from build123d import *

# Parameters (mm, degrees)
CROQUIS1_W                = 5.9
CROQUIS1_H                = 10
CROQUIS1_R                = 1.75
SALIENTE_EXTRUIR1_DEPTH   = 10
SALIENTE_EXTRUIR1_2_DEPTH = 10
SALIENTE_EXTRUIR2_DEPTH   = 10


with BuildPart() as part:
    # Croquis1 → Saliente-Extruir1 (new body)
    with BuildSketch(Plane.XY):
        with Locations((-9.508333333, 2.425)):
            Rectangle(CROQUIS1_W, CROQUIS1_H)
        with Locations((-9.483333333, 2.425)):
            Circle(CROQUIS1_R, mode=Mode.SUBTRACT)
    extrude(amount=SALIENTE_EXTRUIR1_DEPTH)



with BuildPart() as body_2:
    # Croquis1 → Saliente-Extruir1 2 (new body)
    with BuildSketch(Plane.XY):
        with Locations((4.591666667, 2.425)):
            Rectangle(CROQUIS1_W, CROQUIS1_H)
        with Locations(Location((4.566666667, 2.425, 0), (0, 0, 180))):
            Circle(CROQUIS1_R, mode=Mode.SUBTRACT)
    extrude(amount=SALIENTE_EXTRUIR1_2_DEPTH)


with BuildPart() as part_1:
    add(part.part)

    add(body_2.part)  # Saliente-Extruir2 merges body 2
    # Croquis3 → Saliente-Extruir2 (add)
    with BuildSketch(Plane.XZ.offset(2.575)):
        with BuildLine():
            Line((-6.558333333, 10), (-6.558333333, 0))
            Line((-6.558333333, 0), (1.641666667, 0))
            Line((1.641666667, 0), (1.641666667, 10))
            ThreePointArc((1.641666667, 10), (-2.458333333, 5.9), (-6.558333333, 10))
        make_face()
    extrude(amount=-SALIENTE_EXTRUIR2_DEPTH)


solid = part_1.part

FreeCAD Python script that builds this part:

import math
import FreeCAD as App
import Part
import Sketcher
Q = App.Units.Quantity

doc = App.newDocument("Part")
body = doc.addObject("PartDesign::Body", "Body")

sketch1 = doc.addObject("Sketcher::SketchObject", "Sketch")
body.addObject(sketch1)
sketch1.AttachmentSupport = (doc.XY_Plane, [""])
sketch1.MapMode = "FlatFace"
sketch1.addGeometry([
    Part.LineSegment(App.Vector(-12.5, 7.4, 0), App.Vector(-12.5, -2.6, 0)),
    Part.LineSegment(App.Vector(-12.5, -2.6, 0), App.Vector(-6.6, -2.6, 0)),
    Part.LineSegment(App.Vector(-6.6, -2.6, 0), App.Vector(-6.6, 7.4, 0)),
    Part.LineSegment(App.Vector(-6.6, 7.4, 0), App.Vector(-12.5, 7.4, 0)),
    Part.Circle(App.Vector(-9.5, 2.4, 0), App.Vector(0, 0, 1), 1.8),
], False)
sketch1.addConstraint([
    Sketcher.Constraint("Coincident", 0, 2, 1, 1),
    Sketcher.Constraint("Coincident", 1, 2, 2, 1),
    Sketcher.Constraint("Coincident", 2, 2, 3, 1),
    Sketcher.Constraint("Coincident", 3, 2, 0, 1),
    Sketcher.Constraint("Vertical", 0),
    Sketcher.Constraint("Horizontal", 1),
    Sketcher.Constraint("Vertical", 2),
    Sketcher.Constraint("Horizontal", 3),
    Sketcher.Constraint("Diameter", 4, Q("3.5 mm")),
    Sketcher.Constraint("DistanceY", 0, 2, 0, 1, Q("10 mm")),
    Sketcher.Constraint("DistanceX", 1, 1, 1, 2, Q("5.9 mm")),
    Sketcher.Constraint("DistanceY", 0, 2, 4, 3, Q("5 mm")),
    Sketcher.Constraint("DistanceY", -1, 1, 4, 3, Q("2.425 mm")),
    Sketcher.Constraint("DistanceX", 0, 2, 4, 3, Q("2.975 mm")),
    Sketcher.Constraint("DistanceX", 4, 3, -1, 1, Q("9.483333 mm")),
])
pad1 = doc.addObject("PartDesign::Pad", "Pad")
body.addObject(pad1)
pad1.Profile = sketch1
pad1.Length = 10
body2 = doc.addObject("PartDesign::Body", "Body001")

sketch2 = doc.addObject("Sketcher::SketchObject", "Sketch001")
body2.addObject(sketch2)
sketch2.AttachmentSupport = (doc.getObject("XY_Plane001"), [""])
sketch2.MapMode = "FlatFace"
sketch2.addGeometry([
    Part.LineSegment(App.Vector(1.6, 7.4, 0), App.Vector(1.6, -2.6, 0)),
    Part.LineSegment(App.Vector(1.6, -2.6, 0), App.Vector(7.5, -2.6, 0)),
    Part.LineSegment(App.Vector(7.5, -2.6, 0), App.Vector(7.5, 7.4, 0)),
    Part.LineSegment(App.Vector(7.5, 7.4, 0), App.Vector(1.6, 7.4, 0)),
    Part.Circle(App.Vector(4.6, 2.4, 0), App.Vector(0, 0, 1), 1.8),
], False)
sketch2.addConstraint([
    Sketcher.Constraint("Coincident", 0, 2, 1, 1),
    Sketcher.Constraint("Coincident", 1, 2, 2, 1),
    Sketcher.Constraint("Coincident", 2, 2, 3, 1),
    Sketcher.Constraint("Coincident", 3, 2, 0, 1),
    Sketcher.Constraint("Vertical", 0),
    Sketcher.Constraint("Horizontal", 1),
    Sketcher.Constraint("Vertical", 2),
    Sketcher.Constraint("Horizontal", 3),
    Sketcher.Constraint("Diameter", 4, Q("3.5 mm")),
    Sketcher.Constraint("DistanceY", 0, 2, 0, 1, Q("10 mm")),
    Sketcher.Constraint("DistanceX", 1, 1, 1, 2, Q("5.9 mm")),
    Sketcher.Constraint("DistanceY", 0, 2, 4, 3, Q("5 mm")),
    Sketcher.Constraint("DistanceY", -1, 1, 4, 3, Q("2.425 mm")),
    Sketcher.Constraint("DistanceX", 0, 2, 4, 3, Q("2.925 mm")),
    Sketcher.Constraint("DistanceX", -1, 1, 4, 3, Q("4.566667 mm")),
])
pad2 = doc.addObject("PartDesign::Pad", "Pad001")
body2.addObject(pad2)
pad2.Profile = sketch2
pad2.Length = 10
body.AllowCompound = True
doc.recompute()

boolean = doc.addObject("PartDesign::Boolean", "Boolean")
body.addObject(boolean)
boolean.Type = "Fuse"
boolean.addObjects([body2])

sketch3 = doc.addObject("Sketcher::SketchObject", "Sketch002")
body.addObject(sketch3)
sketch3.AttachmentSupport = (doc.XZ_Plane, [""])
sketch3.MapMode = "FlatFace"
sketch3.AttachmentOffset = App.Placement(App.Vector(0, 0, 2.575), App.Rotation())
sketch3.addGeometry([
    Part.LineSegment(App.Vector(-6.6, 10, 0), App.Vector(-6.6, 0, 0)),
    Part.LineSegment(App.Vector(-6.6, 0, 0), App.Vector(1.6, 0, 0)),
    Part.LineSegment(App.Vector(1.6, 0, 0), App.Vector(1.6, 10, 0)),
    Part.ArcOfCircle(Part.Circle(App.Vector(-2.5, 10, 0), App.Vector(0, 0, 1), 4.1), math.radians(180), math.radians(360)),
], False)
sketch3.addConstraint([
    Sketcher.Constraint("Coincident", 0, 2, 1, 1),
    Sketcher.Constraint("Coincident", 1, 2, 2, 1),
    Sketcher.Constraint("Tangent", 2, 2, 3, 2),
    Sketcher.Constraint("Tangent", 3, 1, 0, 1),
    Sketcher.Constraint("Vertical", 0),
    Sketcher.Constraint("Horizontal", 1),
    Sketcher.Constraint("Vertical", 2),
    Sketcher.Constraint("PointOnObject", 0, 2, -1),
    Sketcher.Constraint("Radius", 3, Q("4.1 mm")),
    Sketcher.Constraint("DistanceY", 0, 2, 0, 1, Q("10 mm")),
    Sketcher.Constraint("DistanceX", 3, 3, -1, 1, Q("2.458333 mm")),
])
pad3 = doc.addObject("PartDesign::Pad", "Pad002")
body.addObject(pad3)
pad3.Profile = sketch3
pad3.Length = 10
pad3.Reversed = True

doc.recompute()
